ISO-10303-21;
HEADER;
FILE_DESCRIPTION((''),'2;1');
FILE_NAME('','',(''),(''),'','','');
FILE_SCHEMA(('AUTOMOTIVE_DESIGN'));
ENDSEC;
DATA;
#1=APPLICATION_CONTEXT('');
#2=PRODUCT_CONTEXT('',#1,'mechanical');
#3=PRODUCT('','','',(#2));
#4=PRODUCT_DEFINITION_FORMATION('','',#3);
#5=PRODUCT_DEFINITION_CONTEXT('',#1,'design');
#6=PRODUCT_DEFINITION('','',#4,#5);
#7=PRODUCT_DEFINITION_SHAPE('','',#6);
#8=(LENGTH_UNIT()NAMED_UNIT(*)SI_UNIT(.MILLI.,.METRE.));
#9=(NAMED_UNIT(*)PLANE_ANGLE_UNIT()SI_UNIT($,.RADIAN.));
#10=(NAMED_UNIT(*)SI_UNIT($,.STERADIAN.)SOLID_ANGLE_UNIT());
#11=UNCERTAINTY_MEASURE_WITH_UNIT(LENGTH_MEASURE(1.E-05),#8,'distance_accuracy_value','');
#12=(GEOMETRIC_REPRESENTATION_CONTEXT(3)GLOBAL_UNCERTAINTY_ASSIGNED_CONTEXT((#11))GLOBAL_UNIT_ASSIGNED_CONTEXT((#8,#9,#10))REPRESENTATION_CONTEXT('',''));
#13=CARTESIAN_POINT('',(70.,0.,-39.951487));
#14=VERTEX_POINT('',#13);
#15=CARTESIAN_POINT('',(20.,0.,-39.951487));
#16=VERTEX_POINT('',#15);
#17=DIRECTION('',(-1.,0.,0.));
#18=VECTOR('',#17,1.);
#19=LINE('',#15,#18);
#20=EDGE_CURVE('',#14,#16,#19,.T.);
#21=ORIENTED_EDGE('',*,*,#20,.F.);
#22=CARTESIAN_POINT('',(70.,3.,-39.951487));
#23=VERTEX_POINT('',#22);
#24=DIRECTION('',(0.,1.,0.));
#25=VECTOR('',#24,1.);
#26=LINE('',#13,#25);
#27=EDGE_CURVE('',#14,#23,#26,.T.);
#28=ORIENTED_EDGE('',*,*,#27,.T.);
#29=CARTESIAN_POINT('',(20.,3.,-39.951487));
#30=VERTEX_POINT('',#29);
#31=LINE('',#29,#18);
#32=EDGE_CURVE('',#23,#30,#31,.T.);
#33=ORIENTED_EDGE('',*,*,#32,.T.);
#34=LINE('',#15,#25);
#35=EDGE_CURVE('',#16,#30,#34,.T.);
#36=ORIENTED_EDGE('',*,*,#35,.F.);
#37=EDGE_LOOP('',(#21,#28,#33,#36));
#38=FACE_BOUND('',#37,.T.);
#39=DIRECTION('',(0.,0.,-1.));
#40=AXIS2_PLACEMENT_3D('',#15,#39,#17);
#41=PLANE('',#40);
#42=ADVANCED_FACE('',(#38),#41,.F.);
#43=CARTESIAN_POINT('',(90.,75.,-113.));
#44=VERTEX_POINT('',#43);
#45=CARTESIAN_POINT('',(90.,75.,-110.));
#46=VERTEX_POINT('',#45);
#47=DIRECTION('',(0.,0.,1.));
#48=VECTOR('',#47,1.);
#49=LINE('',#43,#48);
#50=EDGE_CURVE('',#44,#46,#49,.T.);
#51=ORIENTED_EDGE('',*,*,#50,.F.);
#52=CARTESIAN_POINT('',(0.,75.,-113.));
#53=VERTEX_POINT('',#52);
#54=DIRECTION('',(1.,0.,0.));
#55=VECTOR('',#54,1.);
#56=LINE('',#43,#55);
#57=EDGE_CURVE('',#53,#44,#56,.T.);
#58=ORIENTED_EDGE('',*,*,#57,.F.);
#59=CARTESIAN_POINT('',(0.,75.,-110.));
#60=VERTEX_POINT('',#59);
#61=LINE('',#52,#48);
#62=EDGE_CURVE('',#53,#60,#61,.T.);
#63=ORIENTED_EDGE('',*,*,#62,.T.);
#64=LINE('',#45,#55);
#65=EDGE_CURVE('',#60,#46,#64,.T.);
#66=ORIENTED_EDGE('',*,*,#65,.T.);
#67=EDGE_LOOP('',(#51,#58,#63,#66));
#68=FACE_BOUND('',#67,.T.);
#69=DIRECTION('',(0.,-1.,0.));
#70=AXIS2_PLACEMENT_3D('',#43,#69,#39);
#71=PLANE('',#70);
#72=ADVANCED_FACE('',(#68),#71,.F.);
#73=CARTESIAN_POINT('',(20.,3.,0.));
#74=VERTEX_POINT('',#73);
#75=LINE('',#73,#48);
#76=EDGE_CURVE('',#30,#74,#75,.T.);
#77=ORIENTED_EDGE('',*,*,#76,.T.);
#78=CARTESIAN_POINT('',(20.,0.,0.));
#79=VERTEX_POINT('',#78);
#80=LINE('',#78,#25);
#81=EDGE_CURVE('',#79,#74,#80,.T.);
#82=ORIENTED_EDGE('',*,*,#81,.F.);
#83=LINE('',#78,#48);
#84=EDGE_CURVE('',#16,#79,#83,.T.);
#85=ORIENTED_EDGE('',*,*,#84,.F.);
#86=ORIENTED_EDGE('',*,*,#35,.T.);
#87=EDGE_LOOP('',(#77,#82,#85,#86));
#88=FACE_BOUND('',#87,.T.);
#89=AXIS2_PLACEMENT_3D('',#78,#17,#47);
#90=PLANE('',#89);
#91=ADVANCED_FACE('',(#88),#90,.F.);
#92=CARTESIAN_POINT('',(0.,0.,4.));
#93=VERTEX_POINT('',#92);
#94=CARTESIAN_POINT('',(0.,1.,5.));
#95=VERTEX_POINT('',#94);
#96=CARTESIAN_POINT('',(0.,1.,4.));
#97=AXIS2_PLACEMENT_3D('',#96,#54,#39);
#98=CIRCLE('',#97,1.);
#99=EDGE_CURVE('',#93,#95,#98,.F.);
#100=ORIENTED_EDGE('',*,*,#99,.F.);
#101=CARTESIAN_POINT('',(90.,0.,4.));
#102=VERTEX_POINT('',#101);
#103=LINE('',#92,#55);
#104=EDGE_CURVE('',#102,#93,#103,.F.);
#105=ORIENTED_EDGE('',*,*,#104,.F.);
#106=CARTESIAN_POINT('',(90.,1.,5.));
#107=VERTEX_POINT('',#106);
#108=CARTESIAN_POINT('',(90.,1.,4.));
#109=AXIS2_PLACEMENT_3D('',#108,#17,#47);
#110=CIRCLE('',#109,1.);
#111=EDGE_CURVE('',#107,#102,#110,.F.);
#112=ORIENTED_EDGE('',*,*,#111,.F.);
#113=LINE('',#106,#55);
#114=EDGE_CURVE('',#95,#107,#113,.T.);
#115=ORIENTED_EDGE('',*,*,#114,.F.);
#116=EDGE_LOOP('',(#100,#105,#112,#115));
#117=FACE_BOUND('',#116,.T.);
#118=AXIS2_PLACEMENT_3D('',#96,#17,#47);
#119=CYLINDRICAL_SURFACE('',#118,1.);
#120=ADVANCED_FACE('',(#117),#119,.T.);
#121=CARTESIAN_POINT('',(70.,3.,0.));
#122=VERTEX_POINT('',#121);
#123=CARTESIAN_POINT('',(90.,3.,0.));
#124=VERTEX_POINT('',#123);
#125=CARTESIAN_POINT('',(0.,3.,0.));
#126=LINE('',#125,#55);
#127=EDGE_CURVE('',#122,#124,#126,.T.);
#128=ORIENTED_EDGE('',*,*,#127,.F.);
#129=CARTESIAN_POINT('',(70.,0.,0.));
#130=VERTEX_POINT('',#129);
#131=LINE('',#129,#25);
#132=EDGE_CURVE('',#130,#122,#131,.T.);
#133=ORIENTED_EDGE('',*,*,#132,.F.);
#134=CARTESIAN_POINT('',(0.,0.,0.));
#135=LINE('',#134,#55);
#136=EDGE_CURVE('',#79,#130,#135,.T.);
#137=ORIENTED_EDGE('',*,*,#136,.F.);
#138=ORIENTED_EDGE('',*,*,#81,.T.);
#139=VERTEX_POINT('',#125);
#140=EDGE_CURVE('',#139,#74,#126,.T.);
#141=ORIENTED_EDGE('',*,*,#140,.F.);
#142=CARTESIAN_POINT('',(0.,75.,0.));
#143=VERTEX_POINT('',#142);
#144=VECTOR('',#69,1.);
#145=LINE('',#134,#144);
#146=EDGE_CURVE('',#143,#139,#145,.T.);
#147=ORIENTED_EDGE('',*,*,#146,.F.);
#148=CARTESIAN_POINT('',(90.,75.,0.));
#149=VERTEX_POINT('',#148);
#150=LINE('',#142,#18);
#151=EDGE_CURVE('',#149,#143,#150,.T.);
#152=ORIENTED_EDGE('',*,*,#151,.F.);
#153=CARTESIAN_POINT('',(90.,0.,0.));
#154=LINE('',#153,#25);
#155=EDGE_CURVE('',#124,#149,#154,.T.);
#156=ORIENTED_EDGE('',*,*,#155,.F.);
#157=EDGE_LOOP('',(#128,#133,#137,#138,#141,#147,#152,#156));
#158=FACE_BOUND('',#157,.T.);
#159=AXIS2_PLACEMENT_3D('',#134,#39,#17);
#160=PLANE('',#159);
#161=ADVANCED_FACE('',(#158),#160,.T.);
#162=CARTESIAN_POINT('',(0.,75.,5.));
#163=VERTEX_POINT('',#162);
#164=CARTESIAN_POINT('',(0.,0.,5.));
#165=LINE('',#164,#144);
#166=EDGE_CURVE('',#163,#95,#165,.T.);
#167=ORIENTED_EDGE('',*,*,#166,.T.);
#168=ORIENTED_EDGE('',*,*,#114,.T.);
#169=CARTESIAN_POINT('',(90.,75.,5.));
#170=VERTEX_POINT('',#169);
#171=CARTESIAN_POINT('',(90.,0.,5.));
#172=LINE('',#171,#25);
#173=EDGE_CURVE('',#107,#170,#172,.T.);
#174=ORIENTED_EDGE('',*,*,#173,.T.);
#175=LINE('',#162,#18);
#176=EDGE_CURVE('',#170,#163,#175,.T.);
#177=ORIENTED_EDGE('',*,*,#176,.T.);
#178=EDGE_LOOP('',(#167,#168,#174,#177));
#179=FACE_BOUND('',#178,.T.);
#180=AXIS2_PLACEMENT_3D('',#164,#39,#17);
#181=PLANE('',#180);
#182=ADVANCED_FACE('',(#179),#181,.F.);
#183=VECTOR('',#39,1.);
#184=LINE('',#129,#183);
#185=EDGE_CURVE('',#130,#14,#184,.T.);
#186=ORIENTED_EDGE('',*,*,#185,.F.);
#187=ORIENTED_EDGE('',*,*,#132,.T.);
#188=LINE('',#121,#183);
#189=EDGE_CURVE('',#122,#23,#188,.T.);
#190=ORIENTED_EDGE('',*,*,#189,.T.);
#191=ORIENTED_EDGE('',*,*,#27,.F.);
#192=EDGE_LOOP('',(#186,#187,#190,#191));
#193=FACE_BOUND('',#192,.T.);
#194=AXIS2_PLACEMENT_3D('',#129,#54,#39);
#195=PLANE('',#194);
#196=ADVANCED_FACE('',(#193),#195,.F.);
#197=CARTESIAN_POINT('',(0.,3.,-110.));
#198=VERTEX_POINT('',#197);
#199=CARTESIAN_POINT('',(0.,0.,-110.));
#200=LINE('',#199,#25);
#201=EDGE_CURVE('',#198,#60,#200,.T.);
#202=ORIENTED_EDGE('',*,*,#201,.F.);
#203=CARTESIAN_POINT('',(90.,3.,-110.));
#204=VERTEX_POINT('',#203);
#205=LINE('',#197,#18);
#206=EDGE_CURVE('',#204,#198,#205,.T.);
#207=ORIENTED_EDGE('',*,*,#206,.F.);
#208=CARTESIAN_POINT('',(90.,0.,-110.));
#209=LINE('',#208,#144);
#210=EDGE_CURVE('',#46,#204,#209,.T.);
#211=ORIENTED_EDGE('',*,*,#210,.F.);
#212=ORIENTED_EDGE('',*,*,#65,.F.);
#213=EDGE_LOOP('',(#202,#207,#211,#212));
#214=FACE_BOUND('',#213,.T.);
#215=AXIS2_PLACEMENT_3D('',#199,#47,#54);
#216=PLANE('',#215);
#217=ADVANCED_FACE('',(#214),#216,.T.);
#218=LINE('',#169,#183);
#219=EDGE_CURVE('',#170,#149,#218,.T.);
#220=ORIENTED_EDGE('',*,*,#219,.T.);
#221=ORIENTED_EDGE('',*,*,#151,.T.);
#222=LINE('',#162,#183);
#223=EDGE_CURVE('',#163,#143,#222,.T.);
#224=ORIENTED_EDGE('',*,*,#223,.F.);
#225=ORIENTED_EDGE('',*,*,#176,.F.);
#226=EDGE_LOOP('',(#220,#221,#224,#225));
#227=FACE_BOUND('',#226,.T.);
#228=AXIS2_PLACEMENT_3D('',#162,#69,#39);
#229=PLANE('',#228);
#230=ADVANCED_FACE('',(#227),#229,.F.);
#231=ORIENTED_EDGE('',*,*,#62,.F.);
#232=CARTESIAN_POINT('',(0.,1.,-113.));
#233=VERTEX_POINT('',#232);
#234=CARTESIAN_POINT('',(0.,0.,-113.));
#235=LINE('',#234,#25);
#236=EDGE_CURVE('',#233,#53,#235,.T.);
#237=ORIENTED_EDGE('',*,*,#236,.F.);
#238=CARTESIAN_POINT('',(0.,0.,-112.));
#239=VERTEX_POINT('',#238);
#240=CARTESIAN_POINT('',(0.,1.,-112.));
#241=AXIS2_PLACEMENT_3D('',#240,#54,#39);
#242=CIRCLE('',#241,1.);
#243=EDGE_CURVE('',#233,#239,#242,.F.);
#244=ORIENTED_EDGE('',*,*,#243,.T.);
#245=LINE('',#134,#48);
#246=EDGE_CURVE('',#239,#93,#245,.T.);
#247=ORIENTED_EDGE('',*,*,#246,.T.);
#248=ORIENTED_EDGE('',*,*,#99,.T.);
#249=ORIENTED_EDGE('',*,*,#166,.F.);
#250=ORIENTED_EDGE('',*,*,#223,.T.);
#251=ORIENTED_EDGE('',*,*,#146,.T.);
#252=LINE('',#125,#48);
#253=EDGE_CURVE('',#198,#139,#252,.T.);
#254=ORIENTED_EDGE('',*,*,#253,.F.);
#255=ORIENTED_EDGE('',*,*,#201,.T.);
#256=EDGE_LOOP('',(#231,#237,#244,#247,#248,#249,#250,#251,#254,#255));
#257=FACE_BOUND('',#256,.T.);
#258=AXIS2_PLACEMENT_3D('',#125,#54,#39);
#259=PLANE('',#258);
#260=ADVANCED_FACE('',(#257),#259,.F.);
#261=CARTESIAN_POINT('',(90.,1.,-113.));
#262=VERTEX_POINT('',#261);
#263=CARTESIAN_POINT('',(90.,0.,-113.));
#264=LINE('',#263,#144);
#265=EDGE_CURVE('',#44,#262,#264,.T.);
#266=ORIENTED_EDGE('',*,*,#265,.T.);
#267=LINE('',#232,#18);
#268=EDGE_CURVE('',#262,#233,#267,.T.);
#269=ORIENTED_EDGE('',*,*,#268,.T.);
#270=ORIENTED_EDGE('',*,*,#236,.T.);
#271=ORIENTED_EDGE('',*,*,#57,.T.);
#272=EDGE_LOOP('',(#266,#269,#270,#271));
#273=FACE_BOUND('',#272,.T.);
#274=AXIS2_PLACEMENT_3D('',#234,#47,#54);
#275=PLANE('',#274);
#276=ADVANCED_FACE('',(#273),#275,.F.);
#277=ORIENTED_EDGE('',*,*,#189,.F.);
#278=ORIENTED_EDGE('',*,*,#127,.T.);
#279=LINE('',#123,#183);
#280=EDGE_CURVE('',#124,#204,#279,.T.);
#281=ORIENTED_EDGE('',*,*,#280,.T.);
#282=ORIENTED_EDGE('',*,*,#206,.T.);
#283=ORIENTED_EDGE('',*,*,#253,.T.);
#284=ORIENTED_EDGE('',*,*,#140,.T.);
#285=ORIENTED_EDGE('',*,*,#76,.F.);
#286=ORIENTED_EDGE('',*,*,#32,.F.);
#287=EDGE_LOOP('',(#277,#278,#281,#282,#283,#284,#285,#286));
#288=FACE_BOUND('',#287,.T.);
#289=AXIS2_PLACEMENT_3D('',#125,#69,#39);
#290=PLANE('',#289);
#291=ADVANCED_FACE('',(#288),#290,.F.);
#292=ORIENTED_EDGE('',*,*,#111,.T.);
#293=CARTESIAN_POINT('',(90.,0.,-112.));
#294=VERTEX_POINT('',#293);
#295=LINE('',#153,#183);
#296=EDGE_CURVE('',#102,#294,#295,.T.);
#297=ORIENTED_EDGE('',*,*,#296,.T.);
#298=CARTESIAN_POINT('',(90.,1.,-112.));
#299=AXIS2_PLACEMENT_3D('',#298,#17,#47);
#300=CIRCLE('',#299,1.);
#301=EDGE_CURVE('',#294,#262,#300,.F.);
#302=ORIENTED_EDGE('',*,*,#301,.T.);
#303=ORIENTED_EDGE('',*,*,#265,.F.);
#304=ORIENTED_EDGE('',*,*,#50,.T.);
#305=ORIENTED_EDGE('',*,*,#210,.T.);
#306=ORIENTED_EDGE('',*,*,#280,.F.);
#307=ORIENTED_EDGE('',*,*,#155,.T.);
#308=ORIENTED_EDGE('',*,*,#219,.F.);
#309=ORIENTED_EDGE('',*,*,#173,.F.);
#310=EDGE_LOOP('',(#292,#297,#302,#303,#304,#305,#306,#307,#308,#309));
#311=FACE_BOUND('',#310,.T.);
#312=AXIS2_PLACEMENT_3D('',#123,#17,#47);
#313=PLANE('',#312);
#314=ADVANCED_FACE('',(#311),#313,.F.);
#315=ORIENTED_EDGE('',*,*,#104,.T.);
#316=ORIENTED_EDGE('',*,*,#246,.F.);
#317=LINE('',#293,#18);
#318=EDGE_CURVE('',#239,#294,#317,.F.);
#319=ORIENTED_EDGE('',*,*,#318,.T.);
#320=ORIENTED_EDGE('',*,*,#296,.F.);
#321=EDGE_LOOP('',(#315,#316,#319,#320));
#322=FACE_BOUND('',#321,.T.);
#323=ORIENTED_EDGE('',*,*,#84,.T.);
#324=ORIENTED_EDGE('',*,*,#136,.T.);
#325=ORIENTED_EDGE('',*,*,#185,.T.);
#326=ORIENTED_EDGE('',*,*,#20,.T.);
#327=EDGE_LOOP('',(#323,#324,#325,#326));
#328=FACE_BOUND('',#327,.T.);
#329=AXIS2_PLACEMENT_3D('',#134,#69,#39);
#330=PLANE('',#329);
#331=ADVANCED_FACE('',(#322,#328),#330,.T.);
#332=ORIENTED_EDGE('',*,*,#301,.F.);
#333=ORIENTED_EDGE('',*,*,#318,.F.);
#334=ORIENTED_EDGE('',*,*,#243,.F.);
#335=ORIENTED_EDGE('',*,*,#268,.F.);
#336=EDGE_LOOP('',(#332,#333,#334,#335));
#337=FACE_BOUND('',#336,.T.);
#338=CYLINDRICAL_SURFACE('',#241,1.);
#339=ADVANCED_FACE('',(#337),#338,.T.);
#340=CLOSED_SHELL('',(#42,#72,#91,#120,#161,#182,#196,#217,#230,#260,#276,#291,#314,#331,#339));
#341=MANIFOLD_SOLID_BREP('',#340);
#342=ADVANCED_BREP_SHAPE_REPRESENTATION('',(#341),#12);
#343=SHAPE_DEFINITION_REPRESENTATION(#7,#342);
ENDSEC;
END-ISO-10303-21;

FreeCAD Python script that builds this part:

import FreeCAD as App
import Part
import Sketcher

V = App.Vector


def edges_at(feature, points):
    """Names of the edges that pass closest to the given points."""
    edges = feature.Shape.Edges
    near = lambda p: min(range(len(edges)), key=lambda i: edges[i].distToShape(Part.Vertex(*p))[0])
    return sorted({f"Edge{near(p) + 1}" for p in points})

doc = App.newDocument("Part")
body = doc.addObject("PartDesign::Body", "Body")

# Sketch on XZ plane
sketch1 = doc.addObject("Sketcher::SketchObject", "Sketch")
body.addObject(sketch1)
sketch1.AttachmentSupport = (doc.XZ_Plane, [""])
sketch1.MapMode = "FlatFace"
sketch1.addGeometry([
    Part.LineSegment(V(0, -110, 0), V(0, 0, 0)),
    Part.LineSegment(V(0, 0, 0), V(90, 0, 0)),
    Part.LineSegment(V(90, 0, 0), V(90, -110, 0)),
    Part.LineSegment(V(90, -110, 0), V(0, -110, 0)),
], False)
sketch1.addConstraint([
    Sketcher.Constraint("Coincident", 0, 2, 1, 1),
    Sketcher.Constraint("Coincident", 1, 2, 2, 1),
    Sketcher.Constraint("Coincident", 2, 2, 3, 1),
    Sketcher.Constraint("Coincident", 3, 2, 0, 1),
    Sketcher.Constraint("Vertical", 0),
    Sketcher.Constraint("Horizontal", 1),
    Sketcher.Constraint("Vertical", 2),
    Sketcher.Constraint("Horizontal", 3),
    Sketcher.Constraint("Coincident", 0, 2, -1, 1),
    Sketcher.Constraint("DistanceX", 1, 1, 1, 2, 90.0),
    Sketcher.Constraint("DistanceY", 0, 1, 0, 2, 110.0),
])
pad1 = doc.addObject("PartDesign::Pad", "Pad")
body.addObject(pad1)
pad1.Profile = sketch1
pad1.Length = 3
pad1.Reversed = True

# Sketch on XZ plane
sketch2 = doc.addObject("Sketcher::SketchObject", "Sketch001")
body.addObject(sketch2)
sketch2.AttachmentSupport = (doc.XZ_Plane, [""])
sketch2.MapMode = "FlatFace"
sketch2.AttachmentOffset = App.Placement(V(0, 0, -3), App.Rotation())
sketch2.addGeometry([
    Part.LineSegment(V(20, -40, 0), V(20, 0, 0)),
    Part.LineSegment(V(20, 0, 0), V(70, 0, 0)),
    Part.LineSegment(V(70, 0, 0), V(70, -40, 0)),
    Part.LineSegment(V(70, -40, 0), V(20, -40, 0)),
], False)
sketch2.addConstraint([
    Sketcher.Constraint("Coincident", 0, 2, 1, 1),
    Sketcher.Constraint("Coincident", 1, 2, 2, 1),
    Sketcher.Constraint("Coincident", 2, 2, 3, 1),
    Sketcher.Constraint("Coincident", 3, 2, 0, 1),
    Sketcher.Constraint("Vertical", 0),
    Sketcher.Constraint("Horizontal", 1),
    Sketcher.Constraint("Vertical", 2),
    Sketcher.Constraint("Horizontal", 3),
    Sketcher.Constraint("PointOnObject", 0, 2, -1),
    Sketcher.Constraint("DistanceX", 1, 1, 1, 2, 50.0),
    Sketcher.Constraint("DistanceX", -1, 1, 0, 2, 20.0),
    Sketcher.Constraint("DistanceY", 0, 1, 0, 2, 39.951487),
])
pocket1 = doc.addObject("PartDesign::Pocket", "Pocket")
body.addObject(pocket1)
pocket1.Profile = sketch2
pocket1.Type = "ThroughAll"
pocket1.Reversed = True

# Sketch on XY plane
sketch3 = doc.addObject("Sketcher::SketchObject", "Sketch002")
body.addObject(sketch3)
sketch3.AttachmentSupport = (doc.XY_Plane, [""])
sketch3.MapMode = "FlatFace"
sketch3.addGeometry([
    Part.LineSegment(V(0, 75, 0), V(0, 0, 0)),
    Part.LineSegment(V(0, 0, 0), V(90, 0, 0)),
    Part.LineSegment(V(90, 0, 0), V(90, 75, 0)),
    Part.LineSegment(V(90, 75, 0), V(0, 75, 0)),
], False)
sketch3.addConstraint([
    Sketcher.Constraint("Coincident", 0, 2, 1, 1),
    Sketcher.Constraint("Coincident", 1, 2, 2, 1),
    Sketcher.Constraint("Coincident", 2, 2, 3, 1),
    Sketcher.Constraint("Coincident", 3, 2, 0, 1),
    Sketcher.Constraint("Vertical", 0),
    Sketcher.Constraint("Horizontal", 1),
    Sketcher.Constraint("Vertical", 2),
    Sketcher.Constraint("Horizontal", 3),
    Sketcher.Constraint("Coincident", 0, 2, -1, 1),
    Sketcher.Constraint("DistanceX", 1, 1, 1, 2, 90.0),
    Sketcher.Constraint("DistanceY", 0, 2, 0, 1, 75.0),
])
pad2 = doc.addObject("PartDesign::Pad", "Pad001")
body.addObject(pad2)
pad2.Profile = sketch3
pad2.Length = 5

# Sketch on XY plane
sketch4 = doc.addObject("Sketcher::SketchObject", "Sketch003")
body.addObject(sketch4)
sketch4.AttachmentSupport = (doc.XY_Plane, [""])
sketch4.MapMode = "FlatFace"
sketch4.AttachmentOffset = App.Placement(V(0, 0, -110), App.Rotation())
sketch4.addGeometry([
    Part.LineSegment(V(90, 75, 0), V(90, 0, 0)),
    Part.LineSegment(V(90, 0, 0), V(0, 0, 0)),
    Part.LineSegment(V(0, 0, 0), V(0, 75, 0)),
    Part.LineSegment(V(0, 75, 0), V(90, 75, 0)),
], False)
sketch4.addConstraint([
    Sketcher.Constraint("Coincident", 0, 2, 1, 1),
    Sketcher.Constraint("Coincident", 1, 2, 2, 1),
    Sketcher.Constraint("Coincident", 2, 2, 3, 1),
    Sketcher.Constraint("Coincident", 3, 2, 0, 1),
    Sketcher.Constraint("Vertical", 0),
    Sketcher.Constraint("Horizontal", 1),
    Sketcher.Constraint("Vertical", 2),
    Sketcher.Constraint("Horizontal", 3),
    Sketcher.Constraint("Coincident", 1, 2, -1, 1),
    Sketcher.Constraint("DistanceX", 1, 2, 1, 1, 90.0),
    Sketcher.Constraint("DistanceY", 0, 2, 0, 1, 75.0),
])
pad3 = doc.addObject("PartDesign::Pad", "Pad002")
body.addObject(pad3)
pad3.Profile = sketch4
pad3.Length = 3
pad3.Reversed = True
doc.recompute()

fillet = doc.addObject("PartDesign::Fillet", "Fillet")
body.addObject(fillet)
fillet.Base = (pad3, edges_at(pad3, [(45, 0, 5), (45, 0, -113)]))
fillet.Radius = 1

doc.recompute()
